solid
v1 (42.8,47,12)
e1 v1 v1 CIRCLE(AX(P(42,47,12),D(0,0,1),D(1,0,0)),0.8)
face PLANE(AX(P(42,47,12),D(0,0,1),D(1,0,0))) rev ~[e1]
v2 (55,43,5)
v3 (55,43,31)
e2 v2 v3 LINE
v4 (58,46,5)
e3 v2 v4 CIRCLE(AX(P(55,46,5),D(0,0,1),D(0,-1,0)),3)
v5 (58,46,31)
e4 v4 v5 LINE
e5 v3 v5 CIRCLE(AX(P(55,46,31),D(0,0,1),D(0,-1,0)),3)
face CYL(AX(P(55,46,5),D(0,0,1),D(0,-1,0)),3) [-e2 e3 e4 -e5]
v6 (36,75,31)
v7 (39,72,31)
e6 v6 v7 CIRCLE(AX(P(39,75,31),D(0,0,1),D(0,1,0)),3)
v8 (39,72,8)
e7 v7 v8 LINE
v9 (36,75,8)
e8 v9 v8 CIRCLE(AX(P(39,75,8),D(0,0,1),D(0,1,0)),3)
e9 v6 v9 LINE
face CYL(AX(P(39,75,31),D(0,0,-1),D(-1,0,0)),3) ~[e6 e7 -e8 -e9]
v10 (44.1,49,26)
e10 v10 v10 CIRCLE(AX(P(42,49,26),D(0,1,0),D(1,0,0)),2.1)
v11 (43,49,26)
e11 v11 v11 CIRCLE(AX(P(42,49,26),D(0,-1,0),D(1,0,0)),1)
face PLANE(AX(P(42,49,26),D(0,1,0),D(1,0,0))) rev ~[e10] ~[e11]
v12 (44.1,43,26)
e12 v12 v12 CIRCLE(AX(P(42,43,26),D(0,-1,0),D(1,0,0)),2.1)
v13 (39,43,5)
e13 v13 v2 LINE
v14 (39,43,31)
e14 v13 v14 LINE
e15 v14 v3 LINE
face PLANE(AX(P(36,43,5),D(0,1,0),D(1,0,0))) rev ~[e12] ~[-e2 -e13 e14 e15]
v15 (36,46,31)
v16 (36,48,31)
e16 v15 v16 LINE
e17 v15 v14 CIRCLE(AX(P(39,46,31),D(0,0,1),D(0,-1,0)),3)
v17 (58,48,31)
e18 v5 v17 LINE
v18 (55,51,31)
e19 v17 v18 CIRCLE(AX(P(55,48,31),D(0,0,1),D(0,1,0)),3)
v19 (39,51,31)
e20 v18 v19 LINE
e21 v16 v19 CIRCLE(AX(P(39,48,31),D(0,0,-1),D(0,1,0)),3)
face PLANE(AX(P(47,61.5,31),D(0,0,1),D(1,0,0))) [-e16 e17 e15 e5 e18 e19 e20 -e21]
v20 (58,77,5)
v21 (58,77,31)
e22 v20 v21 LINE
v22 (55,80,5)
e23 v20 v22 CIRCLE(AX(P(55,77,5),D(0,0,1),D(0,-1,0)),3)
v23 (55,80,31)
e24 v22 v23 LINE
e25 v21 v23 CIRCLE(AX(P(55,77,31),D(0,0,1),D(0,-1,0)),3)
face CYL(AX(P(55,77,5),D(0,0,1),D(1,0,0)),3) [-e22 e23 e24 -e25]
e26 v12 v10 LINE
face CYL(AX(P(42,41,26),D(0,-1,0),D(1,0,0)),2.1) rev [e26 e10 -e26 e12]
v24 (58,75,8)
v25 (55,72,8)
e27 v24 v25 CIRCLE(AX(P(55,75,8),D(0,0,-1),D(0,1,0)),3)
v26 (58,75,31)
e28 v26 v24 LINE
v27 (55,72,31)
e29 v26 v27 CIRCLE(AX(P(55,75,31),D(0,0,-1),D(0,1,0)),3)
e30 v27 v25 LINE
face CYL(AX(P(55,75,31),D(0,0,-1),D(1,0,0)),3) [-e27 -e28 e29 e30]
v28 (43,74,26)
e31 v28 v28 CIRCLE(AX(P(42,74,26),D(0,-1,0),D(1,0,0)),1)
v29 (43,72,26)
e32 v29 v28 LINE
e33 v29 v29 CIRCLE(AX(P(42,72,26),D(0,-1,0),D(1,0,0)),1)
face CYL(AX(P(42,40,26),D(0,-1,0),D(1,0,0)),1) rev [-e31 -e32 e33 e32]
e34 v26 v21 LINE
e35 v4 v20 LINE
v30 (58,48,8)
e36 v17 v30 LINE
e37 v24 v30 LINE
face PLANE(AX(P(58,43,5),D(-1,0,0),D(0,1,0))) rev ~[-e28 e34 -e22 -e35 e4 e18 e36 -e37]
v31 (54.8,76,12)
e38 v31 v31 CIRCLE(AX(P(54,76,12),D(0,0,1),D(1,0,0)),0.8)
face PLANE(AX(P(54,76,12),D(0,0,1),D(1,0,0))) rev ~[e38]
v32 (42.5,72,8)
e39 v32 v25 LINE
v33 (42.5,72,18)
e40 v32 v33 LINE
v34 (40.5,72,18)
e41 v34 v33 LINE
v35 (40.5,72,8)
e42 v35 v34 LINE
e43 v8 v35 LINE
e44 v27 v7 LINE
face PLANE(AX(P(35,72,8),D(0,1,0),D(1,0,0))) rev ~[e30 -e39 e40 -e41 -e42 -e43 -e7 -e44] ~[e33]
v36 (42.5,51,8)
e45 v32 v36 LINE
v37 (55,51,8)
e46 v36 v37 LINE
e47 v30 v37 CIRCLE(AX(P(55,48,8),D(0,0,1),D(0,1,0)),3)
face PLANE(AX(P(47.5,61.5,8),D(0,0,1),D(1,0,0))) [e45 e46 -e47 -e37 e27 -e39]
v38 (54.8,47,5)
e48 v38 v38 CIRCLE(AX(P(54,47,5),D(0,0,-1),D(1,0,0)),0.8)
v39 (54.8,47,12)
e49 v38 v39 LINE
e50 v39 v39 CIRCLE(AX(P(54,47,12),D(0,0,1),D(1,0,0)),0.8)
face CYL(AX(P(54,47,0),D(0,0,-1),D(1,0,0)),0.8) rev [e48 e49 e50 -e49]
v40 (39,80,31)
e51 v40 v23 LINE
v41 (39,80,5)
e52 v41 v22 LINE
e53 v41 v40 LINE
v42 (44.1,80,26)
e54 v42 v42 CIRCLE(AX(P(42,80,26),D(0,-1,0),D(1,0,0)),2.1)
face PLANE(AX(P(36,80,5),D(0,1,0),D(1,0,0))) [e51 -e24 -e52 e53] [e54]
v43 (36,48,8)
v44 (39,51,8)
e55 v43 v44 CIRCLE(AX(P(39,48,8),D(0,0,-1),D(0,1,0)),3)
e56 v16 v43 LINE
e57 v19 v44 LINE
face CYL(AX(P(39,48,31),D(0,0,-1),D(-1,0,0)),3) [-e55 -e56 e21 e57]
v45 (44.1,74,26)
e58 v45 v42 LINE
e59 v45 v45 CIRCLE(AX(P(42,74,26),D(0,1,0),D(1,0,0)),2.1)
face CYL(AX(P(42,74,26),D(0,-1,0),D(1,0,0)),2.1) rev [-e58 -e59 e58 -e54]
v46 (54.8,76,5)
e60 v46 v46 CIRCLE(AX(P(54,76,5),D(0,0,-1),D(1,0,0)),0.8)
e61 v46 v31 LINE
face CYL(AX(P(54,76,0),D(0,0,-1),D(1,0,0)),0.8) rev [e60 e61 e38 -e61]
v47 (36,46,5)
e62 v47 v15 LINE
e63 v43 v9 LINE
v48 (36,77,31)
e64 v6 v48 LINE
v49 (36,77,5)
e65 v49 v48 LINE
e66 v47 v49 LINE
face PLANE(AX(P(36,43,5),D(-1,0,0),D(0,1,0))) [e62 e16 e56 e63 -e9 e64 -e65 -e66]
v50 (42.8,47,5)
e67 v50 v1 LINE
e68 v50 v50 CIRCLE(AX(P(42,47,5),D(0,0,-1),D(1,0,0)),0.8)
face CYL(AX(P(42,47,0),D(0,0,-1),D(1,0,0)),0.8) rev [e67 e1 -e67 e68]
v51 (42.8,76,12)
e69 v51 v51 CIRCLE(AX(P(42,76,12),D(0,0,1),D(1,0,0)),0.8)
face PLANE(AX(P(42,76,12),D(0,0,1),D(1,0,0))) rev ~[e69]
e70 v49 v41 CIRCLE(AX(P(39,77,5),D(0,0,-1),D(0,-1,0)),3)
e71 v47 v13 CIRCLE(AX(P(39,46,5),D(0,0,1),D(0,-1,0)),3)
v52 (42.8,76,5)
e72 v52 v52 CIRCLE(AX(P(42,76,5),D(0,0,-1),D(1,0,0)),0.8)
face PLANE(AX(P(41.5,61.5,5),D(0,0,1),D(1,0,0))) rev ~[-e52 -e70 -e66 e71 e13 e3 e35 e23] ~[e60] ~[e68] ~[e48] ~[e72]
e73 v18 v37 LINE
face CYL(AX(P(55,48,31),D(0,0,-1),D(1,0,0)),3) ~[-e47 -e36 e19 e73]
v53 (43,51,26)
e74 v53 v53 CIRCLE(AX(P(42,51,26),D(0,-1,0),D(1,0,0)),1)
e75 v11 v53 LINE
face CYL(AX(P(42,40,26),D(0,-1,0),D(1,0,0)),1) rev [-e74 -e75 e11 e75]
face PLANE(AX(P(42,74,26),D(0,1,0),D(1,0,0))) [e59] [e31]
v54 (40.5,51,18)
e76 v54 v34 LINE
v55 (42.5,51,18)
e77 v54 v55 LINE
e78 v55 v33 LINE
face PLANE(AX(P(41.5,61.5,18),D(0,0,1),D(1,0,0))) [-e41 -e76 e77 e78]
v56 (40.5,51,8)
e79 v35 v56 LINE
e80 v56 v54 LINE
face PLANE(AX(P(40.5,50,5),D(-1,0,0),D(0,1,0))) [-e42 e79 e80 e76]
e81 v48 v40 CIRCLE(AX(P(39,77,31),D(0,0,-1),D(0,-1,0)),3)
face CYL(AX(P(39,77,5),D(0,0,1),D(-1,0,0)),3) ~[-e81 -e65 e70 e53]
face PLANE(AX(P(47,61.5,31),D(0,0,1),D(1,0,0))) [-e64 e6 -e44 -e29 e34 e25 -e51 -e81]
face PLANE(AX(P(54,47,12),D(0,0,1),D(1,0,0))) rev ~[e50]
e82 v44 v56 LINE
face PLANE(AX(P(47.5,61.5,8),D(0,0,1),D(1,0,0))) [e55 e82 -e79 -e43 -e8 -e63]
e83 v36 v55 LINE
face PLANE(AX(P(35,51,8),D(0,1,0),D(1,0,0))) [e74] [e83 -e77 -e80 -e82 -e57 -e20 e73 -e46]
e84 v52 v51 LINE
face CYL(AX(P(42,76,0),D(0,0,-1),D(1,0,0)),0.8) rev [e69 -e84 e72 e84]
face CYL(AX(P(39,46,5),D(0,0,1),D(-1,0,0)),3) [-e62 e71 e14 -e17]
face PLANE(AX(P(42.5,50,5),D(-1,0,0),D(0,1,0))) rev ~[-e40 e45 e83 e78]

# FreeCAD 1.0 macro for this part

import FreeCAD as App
import Part
import Sketcher
from FreeCAD import Vector
Q = App.Units.Quantity


def edges_at(feature, points):
    """Names of the edges that pass closest to the given points."""
    edges = feature.Shape.Edges
    near = lambda p: min(range(len(edges)), key=lambda i: edges[i].distToShape(Part.Vertex(*p))[0])
    return sorted({f"Edge{near(p) + 1}" for p in points})

doc = App.newDocument("Part")
body = doc.addObject("PartDesign::Body", "Body")

# Sketch on XY plane
sketch1 = body.newObject("Sketcher::SketchObject", "Sketch")
sketch1.AttachmentSupport = (doc.getObject("XY_Plane"), [""])
sketch1.MapMode = "FlatFace"
sketch1.addGeometry(Part.Circle(Vector(54, 47, 0), Vector(0, 0, 1), 0.8), False)
sketch1.addConstraint([
    Sketcher.Constraint("Diameter", 0, Q("1.6 mm")),
    Sketcher.Constraint("DistanceX", -1, 1, 0, 3, Q("54 mm")),
    Sketcher.Constraint("DistanceY", -1, 1, 0, 3, Q("47 mm")),
])
pad1 = body.newObject("PartDesign::Pad", "Pad")
pad1.Profile = sketch1
pad1.Length = 12
body2 = doc.addObject("PartDesign::Body", "Body001")

# Sketch on XY plane
sketch2 = body2.newObject("Sketcher::SketchObject", "Sketch001")
sketch2.AttachmentSupport = (doc.getObject("XY_Plane001"), [""])
sketch2.MapMode = "FlatFace"
sketch2.addGeometry(Part.Circle(Vector(42, 76, 0), Vector(0, 0, 1), 0.8), False)
sketch2.addConstraint([
    Sketcher.Constraint("Diameter", 0, Q("1.6 mm")),
    Sketcher.Constraint("DistanceX", -1, 1, 0, 3, Q("42 mm")),
    Sketcher.Constraint("DistanceY", -1, 1, 0, 3, Q("76 mm")),
])
pad2 = body2.newObject("PartDesign::Pad", "Pad001")
pad2.Profile = sketch2
pad2.Length = 12
body3 = doc.addObject("PartDesign::Body", "Body002")

# Sketch on XY plane
sketch3 = body3.newObject("Sketcher::SketchObject", "Sketch002")
sketch3.AttachmentSupport = (doc.getObject("XY_Plane002"), [""])
sketch3.MapMode = "FlatFace"
sketch3.addGeometry(Part.Circle(Vector(54, 76, 0), Vector(0, 0, 1), 0.8), False)
sketch3.addConstraint([
    Sketcher.Constraint("Diameter", 0, Q("1.6 mm")),
    Sketcher.Constraint("DistanceX", -1, 1, 0, 3, Q("54 mm")),
    Sketcher.Constraint("DistanceY", -1, 1, 0, 3, Q("76 mm")),
])
pad3 = body3.newObject("PartDesign::Pad", "Pad002")
pad3.Profile = sketch3
pad3.Length = 12
body4 = doc.addObject("PartDesign::Body", "Body003")

# Sketch on XZ plane
sketch4 = body4.newObject("Sketcher::SketchObject", "Sketch003")
sketch4.AttachmentSupport = (doc.getObject("XZ_Plane003"), [""])
sketch4.MapMode = "FlatFace"
sketch4.AttachmentOffset = App.Placement(Vector(0, 0, -40), App.Rotation())
sketch4.addGeometry(Part.Circle(Vector(42, 26, 0), Vector(0, 0, 1), 1), False)
sketch4.addConstraint([
    Sketcher.Constraint("Diameter", 0, Q("2 mm")),
    Sketcher.Constraint("DistanceX", -1, 1, 0, 3, Q("42 mm")),
    Sketcher.Constraint("DistanceY", -1, 1, 0, 3, Q("26 mm")),
])
pad4 = body4.newObject("PartDesign::Pad", "Pad003")
pad4.Profile = sketch4
pad4.Length = 45
pad4.Reversed = True
body5 = doc.addObject("PartDesign::Body", "Body004")

# Sketch on XZ plane
sketch5 = body5.newObject("Sketcher::SketchObject", "Sketch004")
sketch5.AttachmentSupport = (doc.getObject("XZ_Plane004"), [""])
sketch5.MapMode = "FlatFace"
sketch5.AttachmentOffset = App.Placement(Vector(0, 0, -41), App.Rotation())
sketch5.addGeometry(Part.Circle(Vector(42, 26, 0), Vector(0, 0, 1), 2.1), False)
sketch5.addConstraint([
    Sketcher.Constraint("Diameter", 0, Q("4.2 mm")),
    Sketcher.Constraint("DistanceX", -1, 1, 0, 3, Q("42 mm")),
    Sketcher.Constraint("DistanceY", -1, 1, 0, 3, Q("26 mm")),
])
pad5 = body5.newObject("PartDesign::Pad", "Pad004")
pad5.Profile = sketch5
pad5.Length = 8
pad5.Reversed = True
body6 = doc.addObject("PartDesign::Body", "Body005")

# Sketch on XZ plane
sketch6 = body6.newObject("Sketcher::SketchObject", "Sketch005")
sketch6.AttachmentSupport = (doc.getObject("XZ_Plane005"), [""])
sketch6.MapMode = "FlatFace"
sketch6.AttachmentOffset = App.Placement(Vector(0, 0, -74), App.Rotation())
sketch6.addGeometry(Part.Circle(Vector(42, 26, 0), Vector(0, 0, 1), 2.1), False)
sketch6.addConstraint([
    Sketcher.Constraint("Diameter", 0, Q("4.2 mm")),
    Sketcher.Constraint("DistanceX", -1, 1, 0, 3, Q("42 mm")),
    Sketcher.Constraint("DistanceY", -1, 1, 0, 3, Q("26 mm")),
])
pad6 = body6.newObject("PartDesign::Pad", "Pad005")
pad6.Profile = sketch6
pad6.Length = 8
pad6.Reversed = True
body7 = doc.addObject("PartDesign::Body", "Body006")
body7.AllowCompound = True

# Sketch on XY plane
sketch7 = body7.newObject("Sketcher::SketchObject", "Sketch006")
sketch7.AttachmentSupport = (doc.getObject("XY_Plane006"), [""])
sketch7.MapMode = "FlatFace"
sketch7.addGeometry(Part.Circle(Vector(42, 47, 0), Vector(0, 0, 1), 0.8), False)
sketch7.addConstraint([
    Sketcher.Constraint("Diameter", 0, Q("1.6 mm")),
    Sketcher.Constraint("DistanceX", -1, 1, 0, 3, Q("42 mm")),
    Sketcher.Constraint("DistanceY", -1, 1, 0, 3, Q("47 mm")),
])
pad7 = body7.newObject("PartDesign::Pad", "Pad006")
pad7.Profile = sketch7
pad7.Length = 12
doc.recompute()

boolean = body7.newObject("PartDesign::Boolean", "Boolean")
boolean.Type = "Fuse"
boolean.addObjects([body])
doc.recompute()

boolean2 = body7.newObject("PartDesign::Boolean", "Boolean001")
boolean2.Type = "Fuse"
boolean2.addObjects([body2])
doc.recompute()

boolean3 = body7.newObject("PartDesign::Boolean", "Boolean002")
boolean3.Type = "Fuse"
boolean3.addObjects([body3])
doc.recompute()

boolean4 = body7.newObject("PartDesign::Boolean", "Boolean003")
boolean4.Type = "Fuse"
boolean4.addObjects([body4])
doc.recompute()

boolean5 = body7.newObject("PartDesign::Boolean", "Boolean004")
boolean5.Type = "Fuse"
boolean5.addObjects([body5])
doc.recompute()

boolean6 = body7.newObject("PartDesign::Boolean", "Boolean005")
boolean6.Type = "Fuse"
boolean6.addObjects([body6])
body8 = doc.addObject("PartDesign::Body", "Body007")

# Sketch on XY plane
sketch8 = body8.newObject("Sketcher::SketchObject", "Sketch007")
sketch8.AttachmentSupport = (doc.getObject("XY_Plane007"), [""])
sketch8.MapMode = "FlatFace"
sketch8.AttachmentOffset = App.Placement(Vector(0, 0, 5), App.Rotation())
sketch8.addGeometry([
    Part.LineSegment(Vector(40.5, 73, 0), Vector(40.5, 50, 0)),
    Part.LineSegment(Vector(40.5, 50, 0), Vector(42.5, 50, 0)),
    Part.LineSegment(Vector(42.5, 50, 0), Vector(42.5, 73, 0)),
    Part.LineSegment(Vector(42.5, 73, 0), Vector(40.5, 73, 0)),
], False)
sketch8.addConstraint([
    Sketcher.Constraint("Coincident", 0, 2, 1, 1),
    Sketcher.Constraint("Coincident", 1, 2, 2, 1),
    Sketcher.Constraint("Coincident", 2, 2, 3, 1),
    Sketcher.Constraint("Coincident", 3, 2, 0, 1),
    Sketcher.Constraint("Vertical", 0),
    Sketcher.Constraint("Horizontal", 1),
    Sketcher.Constraint("Vertical", 2),
    Sketcher.Constraint("Horizontal", 3),
    Sketcher.Constraint("DistanceX", 1, 1, 1, 2, Q("2 mm")),
    Sketcher.Constraint("DistanceY", 0, 2, 0, 1, Q("23 mm")),
    Sketcher.Constraint("DistanceY", -1, 1, 0, 2, Q("50 mm")),
    Sketcher.Constraint("DistanceX", -1, 1, 0, 2, Q("40.5 mm")),
])
pad8 = body8.newObject("PartDesign::Pad", "Pad007")
pad8.Profile = sketch8
pad8.Length = 13
body9 = doc.addObject("PartDesign::Body", "Body008")

# Sketch on XY plane
sketch9 = body9.newObject("Sketcher::SketchObject", "Sketch008")
sketch9.AttachmentSupport = (doc.getObject("XY_Plane008"), [""])
sketch9.MapMode = "FlatFace"
sketch9.AttachmentOffset = App.Placement(Vector(0, 0, 8), App.Rotation())
sketch9.addGeometry([
    Part.LineSegment(Vector(35, 72, 0), Vector(35, 51, 0)),
    Part.LineSegment(Vector(35, 51, 0), Vector(60, 51, 0)),
    Part.LineSegment(Vector(60, 51, 0), Vector(60, 72, 0)),
    Part.LineSegment(Vector(60, 72, 0), Vector(35, 72, 0)),
], False)
sketch9.addConstraint([
    Sketcher.Constraint("Coincident", 0, 2, 1, 1),
    Sketcher.Constraint("Coincident", 1, 2, 2, 1),
    Sketcher.Constraint("Coincident", 2, 2, 3, 1),
    Sketcher.Constraint("Coincident", 3, 2, 0, 1),
    Sketcher.Constraint("Vertical", 0),
    Sketcher.Constraint("Horizontal", 1),
    Sketcher.Constraint("Vertical", 2),
    Sketcher.Constraint("Horizontal", 3),
    Sketcher.Constraint("DistanceX", 1, 1, 1, 2, Q("25 mm")),
    Sketcher.Constraint("DistanceY", 0, 2, 0, 1, Q("21 mm")),
    Sketcher.Constraint("DistanceX", -1, 1, 0, 2, Q("35 mm")),
    Sketcher.Constraint("DistanceY", -1, 1, 0, 2, Q("51 mm")),
])
pad9 = body9.newObject("PartDesign::Pad", "Pad008")
pad9.Profile = sketch9
pad9.Length = 28
body10 = doc.addObject("PartDesign::Body", "Body009")

# Sketch on XY plane
sketch10 = body10.newObject("Sketcher::SketchObject", "Sketch009")
sketch10.AttachmentSupport = (doc.getObject("XY_Plane009"), [""])
sketch10.MapMode = "FlatFace"
sketch10.AttachmentOffset = App.Placement(Vector(0, 0, 5), App.Rotation())
sketch10.addGeometry([
    Part.LineSegment(Vector(36, 80, 0), Vector(36, 43, 0)),
    Part.LineSegment(Vector(36, 43, 0), Vector(58, 43, 0)),
    Part.LineSegment(Vector(58, 43, 0), Vector(58, 80, 0)),
    Part.LineSegment(Vector(58, 80, 0), Vector(36, 80, 0)),
], False)
sketch10.addConstraint([
    Sketcher.Constraint("Coincident", 0, 2, 1, 1),
    Sketcher.Constraint("Coincident", 1, 2, 2, 1),
    Sketcher.Constraint("Coincident", 2, 2, 3, 1),
    Sketcher.Constraint("Coincident", 3, 2, 0, 1),
    Sketcher.Constraint("Vertical", 0),
    Sketcher.Constraint("Horizontal", 1),
    Sketcher.Constraint("Vertical", 2),
    Sketcher.Constraint("Horizontal", 3),
    Sketcher.Constraint("DistanceX", 1, 1, 1, 2, Q("22 mm")),
    Sketcher.Constraint("DistanceY", 0, 2, 0, 1, Q("37 mm")),
    Sketcher.Constraint("DistanceX", -1, 1, 0, 2, Q("36 mm")),
    Sketcher.Constraint("DistanceY", -1, 1, 0, 2, Q("43 mm")),
])
pad10 = body10.newObject("PartDesign::Pad", "Pad009")
pad10.Profile = sketch10
pad10.Length = 26
doc.recompute()

fillet = body10.newObject("PartDesign::Fillet", "Fillet")
fillet.Base = (pad10, edges_at(pad10, [
    (36, 43, 18),
    (36, 80, 18),
    (58, 43, 18),
    (58, 80, 18),
]))
fillet.Radius = 3
doc.recompute()

boolean7 = body10.newObject("PartDesign::Boolean", "Boolean006")
boolean7.Type = "Cut"
boolean7.addObjects([body9])
doc.recompute()

boolean8 = body10.newObject("PartDesign::Boolean", "Boolean007")
boolean8.Type = "Fuse"
boolean8.addObjects([body8])
doc.recompute()

fillet2 = body10.newObject("PartDesign::Fillet", "Fillet001")
fillet2.Base = (boolean8, edges_at(boolean8, [
    (36, 51, 19.5),
    (36, 72, 19.5),
    (58, 51, 19.5),
    (58, 72, 19.5),
]))
fillet2.Radius = 3
doc.recompute()

boolean9 = body10.newObject("PartDesign::Boolean", "Boolean008")
boolean9.Type = "Cut"
boolean9.addObjects([body7])

doc.recompute()
